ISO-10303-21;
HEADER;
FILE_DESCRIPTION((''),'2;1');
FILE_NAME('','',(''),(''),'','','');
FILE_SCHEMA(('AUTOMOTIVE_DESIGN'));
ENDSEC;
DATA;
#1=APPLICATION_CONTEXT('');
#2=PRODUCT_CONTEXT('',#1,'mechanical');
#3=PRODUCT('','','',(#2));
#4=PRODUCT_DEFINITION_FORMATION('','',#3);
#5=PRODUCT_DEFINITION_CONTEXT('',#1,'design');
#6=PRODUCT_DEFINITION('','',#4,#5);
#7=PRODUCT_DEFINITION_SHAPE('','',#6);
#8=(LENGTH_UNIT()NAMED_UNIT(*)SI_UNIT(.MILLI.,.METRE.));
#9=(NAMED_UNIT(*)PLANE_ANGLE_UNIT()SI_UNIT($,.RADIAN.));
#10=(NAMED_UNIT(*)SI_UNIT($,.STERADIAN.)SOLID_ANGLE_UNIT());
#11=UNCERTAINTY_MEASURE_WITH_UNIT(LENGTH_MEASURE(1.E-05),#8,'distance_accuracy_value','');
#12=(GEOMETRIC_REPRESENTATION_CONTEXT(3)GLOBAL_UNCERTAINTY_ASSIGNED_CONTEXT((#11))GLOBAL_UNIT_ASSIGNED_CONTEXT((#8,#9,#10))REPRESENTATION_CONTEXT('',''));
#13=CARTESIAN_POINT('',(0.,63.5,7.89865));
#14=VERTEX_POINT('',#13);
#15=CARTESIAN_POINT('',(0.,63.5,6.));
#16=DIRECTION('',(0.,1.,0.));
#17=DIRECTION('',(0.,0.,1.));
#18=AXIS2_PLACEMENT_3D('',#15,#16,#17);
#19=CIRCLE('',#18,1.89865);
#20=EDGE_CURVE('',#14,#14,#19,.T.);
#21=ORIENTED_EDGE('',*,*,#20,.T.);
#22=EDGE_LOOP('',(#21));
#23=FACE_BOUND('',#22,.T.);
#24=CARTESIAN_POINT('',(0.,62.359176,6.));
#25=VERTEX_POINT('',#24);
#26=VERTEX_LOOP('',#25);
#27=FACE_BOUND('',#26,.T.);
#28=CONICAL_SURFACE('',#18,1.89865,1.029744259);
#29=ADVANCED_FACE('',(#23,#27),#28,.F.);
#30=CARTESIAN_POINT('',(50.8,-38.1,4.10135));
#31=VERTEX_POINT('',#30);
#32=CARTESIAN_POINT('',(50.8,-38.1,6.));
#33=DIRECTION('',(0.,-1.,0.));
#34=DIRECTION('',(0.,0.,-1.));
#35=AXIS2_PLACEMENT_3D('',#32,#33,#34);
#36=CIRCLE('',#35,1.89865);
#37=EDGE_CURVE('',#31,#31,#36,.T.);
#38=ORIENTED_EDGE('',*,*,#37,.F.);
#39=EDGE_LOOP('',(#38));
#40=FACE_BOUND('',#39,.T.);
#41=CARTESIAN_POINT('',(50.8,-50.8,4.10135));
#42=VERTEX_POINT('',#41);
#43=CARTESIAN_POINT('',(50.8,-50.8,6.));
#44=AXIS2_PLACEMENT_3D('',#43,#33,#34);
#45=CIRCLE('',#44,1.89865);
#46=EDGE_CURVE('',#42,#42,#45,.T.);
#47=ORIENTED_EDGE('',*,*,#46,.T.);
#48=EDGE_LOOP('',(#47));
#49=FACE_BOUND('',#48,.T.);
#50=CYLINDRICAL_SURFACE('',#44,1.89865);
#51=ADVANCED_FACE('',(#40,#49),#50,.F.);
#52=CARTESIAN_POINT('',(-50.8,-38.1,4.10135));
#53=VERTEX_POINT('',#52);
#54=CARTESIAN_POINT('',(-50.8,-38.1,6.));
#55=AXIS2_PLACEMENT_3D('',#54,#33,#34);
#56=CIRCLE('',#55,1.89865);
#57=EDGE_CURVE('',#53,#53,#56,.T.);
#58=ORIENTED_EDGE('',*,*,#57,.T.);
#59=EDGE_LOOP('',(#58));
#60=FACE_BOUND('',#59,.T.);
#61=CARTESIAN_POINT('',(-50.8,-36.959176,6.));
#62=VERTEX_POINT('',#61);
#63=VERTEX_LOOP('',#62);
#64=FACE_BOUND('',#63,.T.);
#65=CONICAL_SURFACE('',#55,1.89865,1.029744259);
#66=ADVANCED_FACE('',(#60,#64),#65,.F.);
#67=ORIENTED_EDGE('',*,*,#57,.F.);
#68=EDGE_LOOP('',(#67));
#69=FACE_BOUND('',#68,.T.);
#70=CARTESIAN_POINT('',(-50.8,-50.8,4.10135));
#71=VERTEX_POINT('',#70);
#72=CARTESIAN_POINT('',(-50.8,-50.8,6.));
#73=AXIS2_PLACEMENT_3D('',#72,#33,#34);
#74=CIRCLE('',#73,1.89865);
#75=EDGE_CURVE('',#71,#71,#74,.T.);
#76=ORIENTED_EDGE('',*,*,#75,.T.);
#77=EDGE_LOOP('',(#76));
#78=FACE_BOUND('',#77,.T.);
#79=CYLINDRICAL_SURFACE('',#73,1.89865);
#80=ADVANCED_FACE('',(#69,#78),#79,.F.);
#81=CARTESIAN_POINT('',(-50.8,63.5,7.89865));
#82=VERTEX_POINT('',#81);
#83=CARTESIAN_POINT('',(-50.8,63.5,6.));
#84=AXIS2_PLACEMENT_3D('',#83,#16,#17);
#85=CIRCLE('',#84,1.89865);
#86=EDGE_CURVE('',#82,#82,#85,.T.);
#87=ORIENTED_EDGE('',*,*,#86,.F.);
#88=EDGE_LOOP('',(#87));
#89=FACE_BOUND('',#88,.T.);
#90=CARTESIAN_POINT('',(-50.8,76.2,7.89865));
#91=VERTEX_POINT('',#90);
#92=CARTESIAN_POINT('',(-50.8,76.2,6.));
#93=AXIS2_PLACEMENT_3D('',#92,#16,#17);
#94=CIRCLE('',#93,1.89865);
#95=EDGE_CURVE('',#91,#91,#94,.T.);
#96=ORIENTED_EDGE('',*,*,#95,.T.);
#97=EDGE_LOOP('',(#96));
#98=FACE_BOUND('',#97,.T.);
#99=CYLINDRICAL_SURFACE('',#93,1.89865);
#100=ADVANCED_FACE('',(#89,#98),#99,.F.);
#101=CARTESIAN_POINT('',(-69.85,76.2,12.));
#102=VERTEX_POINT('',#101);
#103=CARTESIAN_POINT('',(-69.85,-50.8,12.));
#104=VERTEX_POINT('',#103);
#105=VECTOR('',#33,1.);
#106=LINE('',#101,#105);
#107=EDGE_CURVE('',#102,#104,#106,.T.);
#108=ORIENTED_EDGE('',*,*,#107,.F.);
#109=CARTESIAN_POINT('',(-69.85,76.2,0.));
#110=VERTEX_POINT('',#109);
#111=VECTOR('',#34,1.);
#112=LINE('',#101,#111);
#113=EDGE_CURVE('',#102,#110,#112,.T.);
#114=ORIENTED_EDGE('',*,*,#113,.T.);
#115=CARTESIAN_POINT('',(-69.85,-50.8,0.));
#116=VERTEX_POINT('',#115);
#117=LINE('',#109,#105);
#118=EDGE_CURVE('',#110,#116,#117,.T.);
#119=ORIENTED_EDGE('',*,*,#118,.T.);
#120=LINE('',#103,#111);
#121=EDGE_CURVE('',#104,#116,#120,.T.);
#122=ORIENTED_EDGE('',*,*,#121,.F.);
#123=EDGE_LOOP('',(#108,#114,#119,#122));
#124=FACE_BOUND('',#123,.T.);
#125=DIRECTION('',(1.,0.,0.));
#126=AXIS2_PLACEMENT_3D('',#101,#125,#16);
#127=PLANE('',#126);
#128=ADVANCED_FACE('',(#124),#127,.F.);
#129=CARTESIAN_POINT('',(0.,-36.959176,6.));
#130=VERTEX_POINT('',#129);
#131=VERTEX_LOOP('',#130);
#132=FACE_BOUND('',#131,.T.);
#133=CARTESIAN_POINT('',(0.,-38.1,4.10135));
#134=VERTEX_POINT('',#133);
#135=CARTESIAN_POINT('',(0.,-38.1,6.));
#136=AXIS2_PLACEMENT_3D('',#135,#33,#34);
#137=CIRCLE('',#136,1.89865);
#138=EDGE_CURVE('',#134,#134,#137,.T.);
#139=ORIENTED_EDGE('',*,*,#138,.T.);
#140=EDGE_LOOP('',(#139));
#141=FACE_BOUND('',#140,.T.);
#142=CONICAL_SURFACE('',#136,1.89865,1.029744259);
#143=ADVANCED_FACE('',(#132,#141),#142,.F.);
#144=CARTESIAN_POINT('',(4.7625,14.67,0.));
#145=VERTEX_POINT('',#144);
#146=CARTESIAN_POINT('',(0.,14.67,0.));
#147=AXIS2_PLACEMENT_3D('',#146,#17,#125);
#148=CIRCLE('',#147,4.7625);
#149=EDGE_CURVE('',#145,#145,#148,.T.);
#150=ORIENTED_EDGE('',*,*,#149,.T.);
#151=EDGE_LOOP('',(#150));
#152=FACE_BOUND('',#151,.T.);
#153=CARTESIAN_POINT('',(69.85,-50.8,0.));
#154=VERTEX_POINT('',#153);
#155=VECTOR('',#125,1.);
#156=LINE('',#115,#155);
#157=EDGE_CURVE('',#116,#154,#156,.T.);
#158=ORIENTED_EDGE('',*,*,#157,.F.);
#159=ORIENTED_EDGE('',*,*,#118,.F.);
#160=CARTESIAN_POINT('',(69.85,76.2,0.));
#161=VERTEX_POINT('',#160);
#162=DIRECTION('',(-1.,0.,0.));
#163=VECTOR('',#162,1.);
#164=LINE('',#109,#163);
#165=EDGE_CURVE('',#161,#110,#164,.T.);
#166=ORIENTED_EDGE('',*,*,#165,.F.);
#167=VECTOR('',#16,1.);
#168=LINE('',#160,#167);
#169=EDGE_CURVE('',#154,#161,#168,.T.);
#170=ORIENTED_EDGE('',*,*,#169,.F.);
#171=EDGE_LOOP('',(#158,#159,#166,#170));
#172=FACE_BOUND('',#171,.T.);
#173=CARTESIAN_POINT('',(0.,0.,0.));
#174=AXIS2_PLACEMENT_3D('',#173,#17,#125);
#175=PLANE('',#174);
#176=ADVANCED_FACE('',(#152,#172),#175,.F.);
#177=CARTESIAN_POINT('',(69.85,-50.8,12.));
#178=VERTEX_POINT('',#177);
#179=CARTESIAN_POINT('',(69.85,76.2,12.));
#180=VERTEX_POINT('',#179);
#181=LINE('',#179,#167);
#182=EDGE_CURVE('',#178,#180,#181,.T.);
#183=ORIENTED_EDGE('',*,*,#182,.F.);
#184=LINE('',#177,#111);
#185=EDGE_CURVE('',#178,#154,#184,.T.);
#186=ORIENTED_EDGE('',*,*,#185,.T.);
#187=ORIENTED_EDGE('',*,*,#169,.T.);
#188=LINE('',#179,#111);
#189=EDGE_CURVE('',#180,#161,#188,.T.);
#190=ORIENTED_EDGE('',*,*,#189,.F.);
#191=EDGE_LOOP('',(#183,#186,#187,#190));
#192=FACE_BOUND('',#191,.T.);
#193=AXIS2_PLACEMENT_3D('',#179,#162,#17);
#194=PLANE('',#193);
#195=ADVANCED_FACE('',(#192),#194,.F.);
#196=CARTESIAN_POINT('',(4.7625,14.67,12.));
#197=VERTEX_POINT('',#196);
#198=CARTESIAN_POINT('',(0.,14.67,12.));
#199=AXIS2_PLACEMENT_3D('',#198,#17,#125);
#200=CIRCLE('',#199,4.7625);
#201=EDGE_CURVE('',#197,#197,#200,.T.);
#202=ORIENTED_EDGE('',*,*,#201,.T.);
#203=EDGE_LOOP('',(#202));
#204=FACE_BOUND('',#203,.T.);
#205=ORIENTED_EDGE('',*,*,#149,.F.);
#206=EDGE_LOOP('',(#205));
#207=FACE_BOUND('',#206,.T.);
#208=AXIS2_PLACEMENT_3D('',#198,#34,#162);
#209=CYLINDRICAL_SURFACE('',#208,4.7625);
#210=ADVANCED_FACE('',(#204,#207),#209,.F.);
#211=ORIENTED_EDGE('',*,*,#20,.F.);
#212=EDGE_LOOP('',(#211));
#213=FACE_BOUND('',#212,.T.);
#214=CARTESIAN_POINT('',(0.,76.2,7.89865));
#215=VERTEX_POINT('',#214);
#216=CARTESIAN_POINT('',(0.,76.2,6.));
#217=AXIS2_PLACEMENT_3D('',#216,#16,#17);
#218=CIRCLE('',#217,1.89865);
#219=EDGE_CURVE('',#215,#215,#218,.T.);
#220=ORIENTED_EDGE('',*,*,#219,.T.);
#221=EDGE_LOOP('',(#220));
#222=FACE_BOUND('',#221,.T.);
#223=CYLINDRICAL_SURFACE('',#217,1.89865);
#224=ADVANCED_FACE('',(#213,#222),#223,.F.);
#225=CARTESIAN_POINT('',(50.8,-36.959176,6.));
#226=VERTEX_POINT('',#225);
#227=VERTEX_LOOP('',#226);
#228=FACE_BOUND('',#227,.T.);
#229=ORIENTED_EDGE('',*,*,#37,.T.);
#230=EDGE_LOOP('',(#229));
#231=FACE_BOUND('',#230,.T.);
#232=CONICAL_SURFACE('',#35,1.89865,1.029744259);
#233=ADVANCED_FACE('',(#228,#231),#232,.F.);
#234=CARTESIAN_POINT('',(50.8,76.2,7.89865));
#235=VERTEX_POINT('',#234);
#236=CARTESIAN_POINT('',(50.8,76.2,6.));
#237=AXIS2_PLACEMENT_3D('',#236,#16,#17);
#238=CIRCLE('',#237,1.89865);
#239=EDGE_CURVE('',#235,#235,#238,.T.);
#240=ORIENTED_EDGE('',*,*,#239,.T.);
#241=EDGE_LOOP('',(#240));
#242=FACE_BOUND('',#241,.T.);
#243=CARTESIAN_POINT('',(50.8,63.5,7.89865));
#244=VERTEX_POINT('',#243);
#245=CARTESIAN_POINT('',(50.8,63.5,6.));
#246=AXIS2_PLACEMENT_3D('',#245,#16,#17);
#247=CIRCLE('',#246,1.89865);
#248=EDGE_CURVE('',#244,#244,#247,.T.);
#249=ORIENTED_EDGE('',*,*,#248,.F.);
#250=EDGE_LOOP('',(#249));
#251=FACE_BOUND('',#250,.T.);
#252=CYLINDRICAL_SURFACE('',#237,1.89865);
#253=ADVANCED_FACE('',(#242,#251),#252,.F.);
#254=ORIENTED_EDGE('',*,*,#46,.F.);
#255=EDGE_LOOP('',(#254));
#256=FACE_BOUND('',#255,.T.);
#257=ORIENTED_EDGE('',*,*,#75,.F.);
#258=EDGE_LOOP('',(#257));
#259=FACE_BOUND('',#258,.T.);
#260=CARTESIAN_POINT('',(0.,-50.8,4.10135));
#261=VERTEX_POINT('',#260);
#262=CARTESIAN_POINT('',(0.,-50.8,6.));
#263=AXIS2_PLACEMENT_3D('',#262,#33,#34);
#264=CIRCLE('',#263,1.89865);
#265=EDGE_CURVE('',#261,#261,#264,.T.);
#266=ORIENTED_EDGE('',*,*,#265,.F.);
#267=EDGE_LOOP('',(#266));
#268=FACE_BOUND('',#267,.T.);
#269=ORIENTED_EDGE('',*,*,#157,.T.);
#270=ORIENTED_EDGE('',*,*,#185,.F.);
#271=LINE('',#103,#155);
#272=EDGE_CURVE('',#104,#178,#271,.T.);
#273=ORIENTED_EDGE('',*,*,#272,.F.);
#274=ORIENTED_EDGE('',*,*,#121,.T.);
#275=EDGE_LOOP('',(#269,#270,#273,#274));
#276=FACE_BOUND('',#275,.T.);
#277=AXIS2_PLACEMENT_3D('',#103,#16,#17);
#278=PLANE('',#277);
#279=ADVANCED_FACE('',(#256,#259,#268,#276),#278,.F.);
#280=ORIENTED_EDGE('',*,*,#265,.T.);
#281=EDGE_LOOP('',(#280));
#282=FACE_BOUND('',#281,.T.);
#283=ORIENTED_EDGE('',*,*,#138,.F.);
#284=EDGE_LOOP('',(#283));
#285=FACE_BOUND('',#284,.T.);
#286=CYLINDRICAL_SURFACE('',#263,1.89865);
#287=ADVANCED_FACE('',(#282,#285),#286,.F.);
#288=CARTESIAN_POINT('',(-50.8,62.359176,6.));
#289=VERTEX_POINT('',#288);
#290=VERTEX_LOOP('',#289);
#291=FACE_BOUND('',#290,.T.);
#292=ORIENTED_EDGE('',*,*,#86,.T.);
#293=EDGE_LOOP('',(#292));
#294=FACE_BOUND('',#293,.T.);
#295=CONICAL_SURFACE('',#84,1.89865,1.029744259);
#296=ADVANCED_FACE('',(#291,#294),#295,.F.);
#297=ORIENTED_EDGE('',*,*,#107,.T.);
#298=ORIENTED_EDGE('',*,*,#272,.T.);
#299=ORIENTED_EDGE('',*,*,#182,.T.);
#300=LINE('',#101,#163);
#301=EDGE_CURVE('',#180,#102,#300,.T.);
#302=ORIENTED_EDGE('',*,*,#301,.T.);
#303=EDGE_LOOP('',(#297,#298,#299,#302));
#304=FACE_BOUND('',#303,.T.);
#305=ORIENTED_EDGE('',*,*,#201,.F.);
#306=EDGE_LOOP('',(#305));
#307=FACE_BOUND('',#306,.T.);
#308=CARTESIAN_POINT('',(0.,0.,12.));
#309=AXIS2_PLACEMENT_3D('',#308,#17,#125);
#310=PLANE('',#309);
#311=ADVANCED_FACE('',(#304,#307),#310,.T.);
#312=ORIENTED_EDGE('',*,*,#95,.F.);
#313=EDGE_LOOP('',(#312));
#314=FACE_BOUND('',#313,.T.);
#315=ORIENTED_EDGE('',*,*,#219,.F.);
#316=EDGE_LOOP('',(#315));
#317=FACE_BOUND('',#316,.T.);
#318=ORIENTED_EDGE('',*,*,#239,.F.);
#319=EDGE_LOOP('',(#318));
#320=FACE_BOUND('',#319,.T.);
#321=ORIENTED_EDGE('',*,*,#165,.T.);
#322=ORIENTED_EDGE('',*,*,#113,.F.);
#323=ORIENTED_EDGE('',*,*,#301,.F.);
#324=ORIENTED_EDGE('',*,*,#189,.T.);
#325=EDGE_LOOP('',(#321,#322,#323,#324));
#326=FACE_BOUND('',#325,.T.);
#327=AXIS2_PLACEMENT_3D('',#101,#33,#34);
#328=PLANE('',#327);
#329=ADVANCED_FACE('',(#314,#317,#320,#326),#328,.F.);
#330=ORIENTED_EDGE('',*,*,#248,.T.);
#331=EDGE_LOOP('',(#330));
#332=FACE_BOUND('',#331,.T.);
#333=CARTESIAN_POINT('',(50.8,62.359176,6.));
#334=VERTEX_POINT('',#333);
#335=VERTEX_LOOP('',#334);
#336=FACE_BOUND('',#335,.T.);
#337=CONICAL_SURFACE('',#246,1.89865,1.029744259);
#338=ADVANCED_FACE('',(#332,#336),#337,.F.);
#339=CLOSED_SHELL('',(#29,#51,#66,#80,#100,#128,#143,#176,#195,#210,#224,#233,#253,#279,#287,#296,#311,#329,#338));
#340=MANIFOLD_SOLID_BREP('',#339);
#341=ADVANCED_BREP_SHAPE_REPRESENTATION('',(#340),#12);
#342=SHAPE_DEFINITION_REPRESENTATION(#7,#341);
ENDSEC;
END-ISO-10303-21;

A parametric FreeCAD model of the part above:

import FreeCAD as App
import Part
import Sketcher
Q = App.Units.Quantity


def add_polygon(sketch, points):
    """Adds a closed chain of lines whose ends are joined by coincident constraints."""
    first, n = sketch.GeometryCount, len(points)
    for a, b in zip(points, points[1:] + points[:1]):
        sketch.addGeometry(Part.LineSegment(App.Vector(*a, 0), App.Vector(*b, 0)), False)
    for i in range(n):
        sketch.addConstraint(Sketcher.Constraint("Coincident", first + i, 2, first + (i + 1) % n, 1))

doc = App.newDocument("Part")
body = doc.addObject("PartDesign::Body", "Body")

sketch1 = body.newObject("Sketcher::SketchObject", "Sketch")
sketch1.AttachmentSupport = (doc.getObject("XY_Plane"), [""])
sketch1.MapMode = "FlatFace"
add_polygon(sketch1, [(-69.8, 76.2), (-69.8, -50.8), (69.8, -50.8), (69.8, 76.2)])
sketch1.addGeometry(Part.Circle(App.Vector(0, 14.7, 0), App.Vector(0, 0, 1), 4.8), False)
sketch1.addConstraint(Sketcher.Constraint("Vertical", 0))
sketch1.addConstraint(Sketcher.Constraint("Horizontal", 1))
sketch1.addConstraint(Sketcher.Constraint("Vertical", 2))
sketch1.addConstraint(Sketcher.Constraint("Horizontal", 3))
sketch1.addConstraint(Sketcher.Constraint("PointOnObject", 4, 3, -2))
sketch1.addConstraint(Sketcher.Constraint("DistanceY", 0, 2, 0, 1, Q("5 in")))
sketch1.addConstraint(Sketcher.Constraint("Diameter", 4, Q("0.375 in")))
sketch1.addConstraint(Sketcher.Constraint("DistanceX", 1, 1, 1, 2, Q("5.5 in")))
sketch1.addConstraint(Sketcher.Constraint("DistanceY", 0, 2, -1, 1, Q("2 in")))
sketch1.addConstraint(Sketcher.Constraint("DistanceX", 0, 2, -1, 1, Q("2.75 in")))
sketch1.addConstraint(Sketcher.Constraint("DistanceY", -1, 1, 4, 3, Q("14.67 mm")))
pad1 = body.newObject("PartDesign::Pad", "Pad")
pad1.Profile = sketch1
pad1.Length = 12

sketch2 = body.newObject("Sketcher::SketchObject", "Sketch001")
sketch2.AttachmentSupport = (doc.getObject("YZ_Plane"), [""])
sketch2.MapMode = "FlatFace"
sketch2.AttachmentOffset = App.Placement(App.Vector(0, 0, 2 * 25.4), App.Rotation())
add_polygon(sketch2, [(-37, 6), (-50.8, 6), (-50.8, 4.1), (-38.1, 4.1)])
sketch2.addGeometry(Part.LineSegment(App.Vector(-50.8, 6, 0), App.Vector(-37, 6, 0)), True)
sketch2.addConstraint(Sketcher.Constraint("Horizontal", 0))
sketch2.addConstraint(Sketcher.Constraint("Vertical", 1))
sketch2.addConstraint(Sketcher.Constraint("Horizontal", 2))
sketch2.addConstraint(Sketcher.Constraint("Horizontal", 4))
sketch2.addConstraint(Sketcher.Constraint("Coincident", 4, 1, 0, 2))
sketch2.addConstraint(Sketcher.Constraint("Equal", 0, 4))
sketch2.addConstraint(Sketcher.Constraint("DistanceX", 2, 1, 2, 2, Q("0.5 in")))
sketch2.addConstraint(Sketcher.Constraint("DistanceX", 0, 2, -1, 1, Q("2 in")))
sketch2.addConstraint(Sketcher.Constraint("Angle", 3, Q("59 deg")))
sketch2.addConstraint(Sketcher.Constraint("DistanceY", 1, 2, 1, 1, Q("1.89865 mm")))
sketch2.addConstraint(Sketcher.Constraint("DistanceY", -1, 1, 0, 2, Q("6 mm")))
groove = body.newObject("PartDesign::Groove", "Groove")
groove.Profile = sketch2
groove.ReferenceAxis = (sketch2, ["Axis0"])
groove.Angle = 360
doc.recompute()

linearpattern = body.newObject("PartDesign::LinearPattern", "LinearPattern")
linearpattern.Originals = [groove]
linearpattern.Direction = (doc.getObject("X_Axis"), [""])
linearpattern.Mode = "offset"
linearpattern.Offset = Q("2 in")
linearpattern.Occurrences = 2
linearpattern.Reversed = True
body.Tip = linearpattern
doc.recompute()

linearpattern2 = body.newObject("PartDesign::LinearPattern", "LinearPattern001")
linearpattern2.Originals = [groove]
linearpattern2.Direction = (doc.getObject("X_Axis"), [""])
linearpattern2.Mode = "offset"
linearpattern2.Offset = Q("4 in")
linearpattern2.Occurrences = 2
linearpattern2.Reversed = True
body.Tip = linearpattern2
doc.recompute()

datumplane = body.newObject("PartDesign::Plane", "DatumPlane")
datumplane.AttachmentSupport = (doc.getObject("XZ_Plane"), [""])
datumplane.MapMode = "FlatFace"
datumplane.AttachmentOffset = App.Placement(App.Vector(0, 0, -0.5 * 25.4), App.Rotation())
mirrored = body.newObject("PartDesign::Mirrored", "Mirrored")
mirrored.Originals = [groove]
mirrored.MirrorPlane = (datumplane, [""])
body.Tip = mirrored

sketch3 = body.newObject("Sketcher::SketchObject", "Sketch002")
sketch3.AttachmentSupport = (doc.getObject("YZ_Plane"), [""])
sketch3.MapMode = "FlatFace"
add_polygon(sketch3, [(76.2, 6), (62.4, 6), (63.5, 4.1), (76.2, 4.1)])
sketch3.addGeometry(Part.LineSegment(App.Vector(62.4, 6, 0), App.Vector(76.2, 6, 0)), True)
sketch3.addConstraint(Sketcher.Constraint("Horizontal", 0))
sketch3.addConstraint(Sketcher.Constraint("Horizontal", 2))
sketch3.addConstraint(Sketcher.Constraint("Vertical", 3))
sketch3.addConstraint(Sketcher.Constraint("Horizontal", 4))
sketch3.addConstraint(Sketcher.Constraint("Coincident", 4, 1, 0, 2))
sketch3.addConstraint(Sketcher.Constraint("Vertical", 2, 2, 4, 2))
sketch3.addConstraint(Sketcher.Constraint("DistanceX", 2, 1, 2, 2, Q("0.5 in")))
sketch3.addConstraint(Sketcher.Constraint("DistanceX", -1, 1, 2, 2, Q("3 in")))
sketch3.addConstraint(Sketcher.Constraint("Angle", 1, Q("-59 deg")))
sketch3.addConstraint(Sketcher.Constraint("DistanceY", 3, 1, 3, 2, Q("1.89865 mm")))
sketch3.addConstraint(Sketcher.Constraint("DistanceY", -1, 1, 0, 2, Q("6 mm")))
groove2 = body.newObject("PartDesign::Groove", "Groove001")
groove2.Profile = sketch3
groove2.ReferenceAxis = (sketch3, ["Axis0"])
groove2.Angle = 360

sketch4 = body.newObject("Sketcher::SketchObject", "Sketch003")
sketch4.AttachmentSupport = (doc.getObject("YZ_Plane"), [""])
sketch4.MapMode = "FlatFace"
sketch4.AttachmentOffset = App.Placement(App.Vector(0, 0, -2 * 25.4), App.Rotation())
add_polygon(sketch4, [(76.2, 6), (62.4, 6), (63.5, 4.1), (76.2, 4.1)])
sketch4.addGeometry(Part.LineSegment(App.Vector(62.4, 6, 0), App.Vector(76.2, 6, 0)), True)
sketch4.addConstraint(Sketcher.Constraint("Horizontal", 0))
sketch4.addConstraint(Sketcher.Constraint("Horizontal", 2))
sketch4.addConstraint(Sketcher.Constraint("Vertical", 3))
sketch4.addConstraint(Sketcher.Constraint("Horizontal", 4))
sketch4.addConstraint(Sketcher.Constraint("Coincident", 4, 1, 0, 2))
sketch4.addConstraint(Sketcher.Constraint("Vertical", 2, 2, 4, 2))
sketch4.addConstraint(Sketcher.Constraint("DistanceX", 2, 1, 2, 2, Q("0.5 in")))
sketch4.addConstraint(Sketcher.Constraint("DistanceX", -1, 1, 2, 2, Q("3 in")))
sketch4.addConstraint(Sketcher.Constraint("Angle", 1, Q("-59 deg")))
sketch4.addConstraint(Sketcher.Constraint("DistanceY", 3, 1, 3, 2, Q("1.89865 mm")))
sketch4.addConstraint(Sketcher.Constraint("DistanceY", -1, 1, 0, 2, Q("6 mm")))
groove3 = body.newObject("PartDesign::Groove", "Groove002")
groove3.Profile = sketch4
groove3.ReferenceAxis = (sketch4, ["Axis0"])
groove3.Angle = 360

doc.recompute()
